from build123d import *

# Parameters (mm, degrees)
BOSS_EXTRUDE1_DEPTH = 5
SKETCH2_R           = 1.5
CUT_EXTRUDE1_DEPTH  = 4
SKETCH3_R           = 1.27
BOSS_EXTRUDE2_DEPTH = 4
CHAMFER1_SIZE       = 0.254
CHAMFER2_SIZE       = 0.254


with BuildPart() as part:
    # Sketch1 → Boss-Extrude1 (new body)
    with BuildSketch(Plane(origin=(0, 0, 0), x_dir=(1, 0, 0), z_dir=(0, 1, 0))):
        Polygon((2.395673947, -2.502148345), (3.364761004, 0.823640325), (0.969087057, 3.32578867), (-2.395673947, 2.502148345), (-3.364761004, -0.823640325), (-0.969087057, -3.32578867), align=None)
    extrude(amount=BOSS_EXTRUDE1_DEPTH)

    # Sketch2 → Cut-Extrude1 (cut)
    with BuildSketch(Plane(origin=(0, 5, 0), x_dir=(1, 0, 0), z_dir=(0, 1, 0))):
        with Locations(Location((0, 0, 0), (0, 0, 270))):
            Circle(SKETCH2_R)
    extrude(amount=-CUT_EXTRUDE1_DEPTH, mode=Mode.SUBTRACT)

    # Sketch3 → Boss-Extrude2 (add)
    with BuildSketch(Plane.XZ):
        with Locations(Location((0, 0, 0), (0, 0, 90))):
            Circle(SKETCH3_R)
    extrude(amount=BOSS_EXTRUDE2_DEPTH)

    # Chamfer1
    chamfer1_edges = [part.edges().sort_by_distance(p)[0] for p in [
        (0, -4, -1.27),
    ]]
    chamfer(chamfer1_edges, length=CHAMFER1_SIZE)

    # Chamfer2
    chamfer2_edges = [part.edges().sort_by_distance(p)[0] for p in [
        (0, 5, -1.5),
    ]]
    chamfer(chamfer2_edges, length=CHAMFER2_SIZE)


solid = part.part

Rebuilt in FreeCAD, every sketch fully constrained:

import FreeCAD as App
import Part
import Sketcher

V = App.Vector


def edges_at(feature, points):
    """Names of the edges that pass closest to the given points."""
    edges = feature.Shape.Edges
    near = lambda p: min(range(len(edges)), key=lambda i: edges[i].distToShape(Part.Vertex(*p))[0])
    return sorted({f"Edge{near(p) + 1}" for p in points})

doc = App.newDocument("Part")
params = doc.addObject("Spreadsheet::Sheet", "Params")
for row, (alias, value) in enumerate([
    ("pad1_length", "5 mm"),
    ("sketch2_diameter", "3 mm"),
    ("pocket1_length", "4 mm"),
    ("sketch3_diameter", "2.54 mm"),
    ("pad2_length", "4 mm"),
    ("chamfer_size", "0.254 mm"),
    ("chamfer2_size", "0.254 mm"),
], start=1):
    params.set(f"A{row}", alias)
    params.set(f"B{row}", "=" + value)
    params.setAlias(f"B{row}", alias)

body = doc.addObject("PartDesign::Body", "Body")

# Sketch on XZ plane
sketch1 = body.newObject("Sketcher::SketchObject", "Sketch")
sketch1.AttachmentSupport = (doc.getObject("XZ_Plane"), [""])
sketch1.MapMode = "FlatFace"
sketch1.addGeometry(Part.LineSegment(V(2.395674, 2.502148, 0), V(3.364761, -0.82364, 0)), False)
sketch1.addGeometry(Part.LineSegment(V(3.364761, -0.82364, 0), V(0.969087, -3.325789, 0)), False)
sketch1.addGeometry(Part.LineSegment(V(0.969087, -3.325789, 0), V(-2.395674, -2.502148, 0)), False)
sketch1.addGeometry(Part.LineSegment(V(-2.395674, -2.502148, 0), V(-3.364761, 0.82364, 0)), False)
sketch1.addGeometry(Part.LineSegment(V(-3.364761, 0.82364, 0), V(-0.969087, 3.325789, 0)), False)
sketch1.addGeometry(Part.LineSegment(V(-0.969087, 3.325789, 0), V(2.395674, 2.502148, 0)), False)
sketch1.addConstraint(Sketcher.Constraint("Coincident", 0, 2, 1, 1))
sketch1.addConstraint(Sketcher.Constraint("Coincident", 1, 2, 2, 1))
sketch1.addConstraint(Sketcher.Constraint("Coincident", 2, 2, 3, 1))
sketch1.addConstraint(Sketcher.Constraint("Coincident", 3, 2, 4, 1))
sketch1.addConstraint(Sketcher.Constraint("Coincident", 4, 2, 5, 1))
sketch1.addConstraint(Sketcher.Constraint("Coincident", 5, 2, 0, 1))
sketch1.addConstraint(Sketcher.Constraint("Symmetric", 0, 2, 3, 2, -1, 1))
sketch1.addConstraint(Sketcher.Constraint("Symmetric", 1, 2, 4, 2, -1, 1))
sketch1.addConstraint(Sketcher.Constraint("Symmetric", 2, 2, 5, 2, -1, 1))
sketch1.addConstraint(Sketcher.Constraint("Equal", 0, 1))
sketch1.addConstraint(Sketcher.Constraint("Equal", 1, 2))
sketch1.addConstraint(Sketcher.Constraint("Distance", 0, 3.464102))
sketch1.addConstraint(Sketcher.Constraint("DistanceX", -1, 1, 0, 2, 3.364761))
sketch1.addConstraint(Sketcher.Constraint("DistanceY", 0, 2, -1, 1, 0.82364))
sketch1.addConstraint(Sketcher.Constraint("DistanceY", 1, 2, -1, 1, 3.325789))
pad1 = body.newObject("PartDesign::Pad", "Pad")
pad1.Profile = sketch1
pad1.setExpression("Length", "Params.pad1_length")
pad1.Reversed = True

# Sketch on XZ plane
sketch2 = body.newObject("Sketcher::SketchObject", "Sketch001")
sketch2.AttachmentSupport = (doc.getObject("XZ_Plane"), [""])
sketch2.MapMode = "FlatFace"
sketch2.AttachmentOffset = App.Placement(V(0, 0, -5), App.Rotation())
sketch2.addGeometry(Part.Circle(V(0, 0, 0), V(0, 0, 1), 1.5), False)
sketch2.addConstraint(Sketcher.Constraint("Coincident", 0, 3, -1, 1))
sketch2.addConstraint(Sketcher.Constraint("Diameter", 0, 3.0))
sketch2.setExpression("Constraints[1]", "Params.sketch2_diameter")
pocket1 = body.newObject("PartDesign::Pocket", "Pocket")
pocket1.Profile = sketch2
pocket1.setExpression("Length", "Params.pocket1_length")
pocket1.Reversed = True

# Sketch on XZ plane
sketch3 = body.newObject("Sketcher::SketchObject", "Sketch002")
sketch3.AttachmentSupport = (doc.getObject("XZ_Plane"), [""])
sketch3.MapMode = "FlatFace"
sketch3.addGeometry(Part.Circle(V(0, 0, 0), V(0, 0, 1), 1.27), False)
sketch3.addConstraint(Sketcher.Constraint("Coincident", 0, 3, -1, 1))
sketch3.addConstraint(Sketcher.Constraint("Diameter", 0, 2.54))
sketch3.setExpression("Constraints[1]", "Params.sketch3_diameter")
pad2 = body.newObject("PartDesign::Pad", "Pad001")
pad2.Profile = sketch3
pad2.setExpression("Length", "Params.pad2_length")
doc.recompute()

chamfer = body.newObject("PartDesign::Chamfer", "Chamfer")
chamfer.Base = (pad2, edges_at(pad2, [(0, -4, -1.27)]))
chamfer.setExpression("Size", "Params.chamfer_size")
doc.recompute()

chamfer2 = body.newObject("PartDesign::Chamfer", "Chamfer001")
chamfer2.Base = (chamfer, edges_at(chamfer, [(0, 5, -1.5)]))
chamfer2.setExpression("Size", "Params.chamfer2_size")

doc.recompute()
